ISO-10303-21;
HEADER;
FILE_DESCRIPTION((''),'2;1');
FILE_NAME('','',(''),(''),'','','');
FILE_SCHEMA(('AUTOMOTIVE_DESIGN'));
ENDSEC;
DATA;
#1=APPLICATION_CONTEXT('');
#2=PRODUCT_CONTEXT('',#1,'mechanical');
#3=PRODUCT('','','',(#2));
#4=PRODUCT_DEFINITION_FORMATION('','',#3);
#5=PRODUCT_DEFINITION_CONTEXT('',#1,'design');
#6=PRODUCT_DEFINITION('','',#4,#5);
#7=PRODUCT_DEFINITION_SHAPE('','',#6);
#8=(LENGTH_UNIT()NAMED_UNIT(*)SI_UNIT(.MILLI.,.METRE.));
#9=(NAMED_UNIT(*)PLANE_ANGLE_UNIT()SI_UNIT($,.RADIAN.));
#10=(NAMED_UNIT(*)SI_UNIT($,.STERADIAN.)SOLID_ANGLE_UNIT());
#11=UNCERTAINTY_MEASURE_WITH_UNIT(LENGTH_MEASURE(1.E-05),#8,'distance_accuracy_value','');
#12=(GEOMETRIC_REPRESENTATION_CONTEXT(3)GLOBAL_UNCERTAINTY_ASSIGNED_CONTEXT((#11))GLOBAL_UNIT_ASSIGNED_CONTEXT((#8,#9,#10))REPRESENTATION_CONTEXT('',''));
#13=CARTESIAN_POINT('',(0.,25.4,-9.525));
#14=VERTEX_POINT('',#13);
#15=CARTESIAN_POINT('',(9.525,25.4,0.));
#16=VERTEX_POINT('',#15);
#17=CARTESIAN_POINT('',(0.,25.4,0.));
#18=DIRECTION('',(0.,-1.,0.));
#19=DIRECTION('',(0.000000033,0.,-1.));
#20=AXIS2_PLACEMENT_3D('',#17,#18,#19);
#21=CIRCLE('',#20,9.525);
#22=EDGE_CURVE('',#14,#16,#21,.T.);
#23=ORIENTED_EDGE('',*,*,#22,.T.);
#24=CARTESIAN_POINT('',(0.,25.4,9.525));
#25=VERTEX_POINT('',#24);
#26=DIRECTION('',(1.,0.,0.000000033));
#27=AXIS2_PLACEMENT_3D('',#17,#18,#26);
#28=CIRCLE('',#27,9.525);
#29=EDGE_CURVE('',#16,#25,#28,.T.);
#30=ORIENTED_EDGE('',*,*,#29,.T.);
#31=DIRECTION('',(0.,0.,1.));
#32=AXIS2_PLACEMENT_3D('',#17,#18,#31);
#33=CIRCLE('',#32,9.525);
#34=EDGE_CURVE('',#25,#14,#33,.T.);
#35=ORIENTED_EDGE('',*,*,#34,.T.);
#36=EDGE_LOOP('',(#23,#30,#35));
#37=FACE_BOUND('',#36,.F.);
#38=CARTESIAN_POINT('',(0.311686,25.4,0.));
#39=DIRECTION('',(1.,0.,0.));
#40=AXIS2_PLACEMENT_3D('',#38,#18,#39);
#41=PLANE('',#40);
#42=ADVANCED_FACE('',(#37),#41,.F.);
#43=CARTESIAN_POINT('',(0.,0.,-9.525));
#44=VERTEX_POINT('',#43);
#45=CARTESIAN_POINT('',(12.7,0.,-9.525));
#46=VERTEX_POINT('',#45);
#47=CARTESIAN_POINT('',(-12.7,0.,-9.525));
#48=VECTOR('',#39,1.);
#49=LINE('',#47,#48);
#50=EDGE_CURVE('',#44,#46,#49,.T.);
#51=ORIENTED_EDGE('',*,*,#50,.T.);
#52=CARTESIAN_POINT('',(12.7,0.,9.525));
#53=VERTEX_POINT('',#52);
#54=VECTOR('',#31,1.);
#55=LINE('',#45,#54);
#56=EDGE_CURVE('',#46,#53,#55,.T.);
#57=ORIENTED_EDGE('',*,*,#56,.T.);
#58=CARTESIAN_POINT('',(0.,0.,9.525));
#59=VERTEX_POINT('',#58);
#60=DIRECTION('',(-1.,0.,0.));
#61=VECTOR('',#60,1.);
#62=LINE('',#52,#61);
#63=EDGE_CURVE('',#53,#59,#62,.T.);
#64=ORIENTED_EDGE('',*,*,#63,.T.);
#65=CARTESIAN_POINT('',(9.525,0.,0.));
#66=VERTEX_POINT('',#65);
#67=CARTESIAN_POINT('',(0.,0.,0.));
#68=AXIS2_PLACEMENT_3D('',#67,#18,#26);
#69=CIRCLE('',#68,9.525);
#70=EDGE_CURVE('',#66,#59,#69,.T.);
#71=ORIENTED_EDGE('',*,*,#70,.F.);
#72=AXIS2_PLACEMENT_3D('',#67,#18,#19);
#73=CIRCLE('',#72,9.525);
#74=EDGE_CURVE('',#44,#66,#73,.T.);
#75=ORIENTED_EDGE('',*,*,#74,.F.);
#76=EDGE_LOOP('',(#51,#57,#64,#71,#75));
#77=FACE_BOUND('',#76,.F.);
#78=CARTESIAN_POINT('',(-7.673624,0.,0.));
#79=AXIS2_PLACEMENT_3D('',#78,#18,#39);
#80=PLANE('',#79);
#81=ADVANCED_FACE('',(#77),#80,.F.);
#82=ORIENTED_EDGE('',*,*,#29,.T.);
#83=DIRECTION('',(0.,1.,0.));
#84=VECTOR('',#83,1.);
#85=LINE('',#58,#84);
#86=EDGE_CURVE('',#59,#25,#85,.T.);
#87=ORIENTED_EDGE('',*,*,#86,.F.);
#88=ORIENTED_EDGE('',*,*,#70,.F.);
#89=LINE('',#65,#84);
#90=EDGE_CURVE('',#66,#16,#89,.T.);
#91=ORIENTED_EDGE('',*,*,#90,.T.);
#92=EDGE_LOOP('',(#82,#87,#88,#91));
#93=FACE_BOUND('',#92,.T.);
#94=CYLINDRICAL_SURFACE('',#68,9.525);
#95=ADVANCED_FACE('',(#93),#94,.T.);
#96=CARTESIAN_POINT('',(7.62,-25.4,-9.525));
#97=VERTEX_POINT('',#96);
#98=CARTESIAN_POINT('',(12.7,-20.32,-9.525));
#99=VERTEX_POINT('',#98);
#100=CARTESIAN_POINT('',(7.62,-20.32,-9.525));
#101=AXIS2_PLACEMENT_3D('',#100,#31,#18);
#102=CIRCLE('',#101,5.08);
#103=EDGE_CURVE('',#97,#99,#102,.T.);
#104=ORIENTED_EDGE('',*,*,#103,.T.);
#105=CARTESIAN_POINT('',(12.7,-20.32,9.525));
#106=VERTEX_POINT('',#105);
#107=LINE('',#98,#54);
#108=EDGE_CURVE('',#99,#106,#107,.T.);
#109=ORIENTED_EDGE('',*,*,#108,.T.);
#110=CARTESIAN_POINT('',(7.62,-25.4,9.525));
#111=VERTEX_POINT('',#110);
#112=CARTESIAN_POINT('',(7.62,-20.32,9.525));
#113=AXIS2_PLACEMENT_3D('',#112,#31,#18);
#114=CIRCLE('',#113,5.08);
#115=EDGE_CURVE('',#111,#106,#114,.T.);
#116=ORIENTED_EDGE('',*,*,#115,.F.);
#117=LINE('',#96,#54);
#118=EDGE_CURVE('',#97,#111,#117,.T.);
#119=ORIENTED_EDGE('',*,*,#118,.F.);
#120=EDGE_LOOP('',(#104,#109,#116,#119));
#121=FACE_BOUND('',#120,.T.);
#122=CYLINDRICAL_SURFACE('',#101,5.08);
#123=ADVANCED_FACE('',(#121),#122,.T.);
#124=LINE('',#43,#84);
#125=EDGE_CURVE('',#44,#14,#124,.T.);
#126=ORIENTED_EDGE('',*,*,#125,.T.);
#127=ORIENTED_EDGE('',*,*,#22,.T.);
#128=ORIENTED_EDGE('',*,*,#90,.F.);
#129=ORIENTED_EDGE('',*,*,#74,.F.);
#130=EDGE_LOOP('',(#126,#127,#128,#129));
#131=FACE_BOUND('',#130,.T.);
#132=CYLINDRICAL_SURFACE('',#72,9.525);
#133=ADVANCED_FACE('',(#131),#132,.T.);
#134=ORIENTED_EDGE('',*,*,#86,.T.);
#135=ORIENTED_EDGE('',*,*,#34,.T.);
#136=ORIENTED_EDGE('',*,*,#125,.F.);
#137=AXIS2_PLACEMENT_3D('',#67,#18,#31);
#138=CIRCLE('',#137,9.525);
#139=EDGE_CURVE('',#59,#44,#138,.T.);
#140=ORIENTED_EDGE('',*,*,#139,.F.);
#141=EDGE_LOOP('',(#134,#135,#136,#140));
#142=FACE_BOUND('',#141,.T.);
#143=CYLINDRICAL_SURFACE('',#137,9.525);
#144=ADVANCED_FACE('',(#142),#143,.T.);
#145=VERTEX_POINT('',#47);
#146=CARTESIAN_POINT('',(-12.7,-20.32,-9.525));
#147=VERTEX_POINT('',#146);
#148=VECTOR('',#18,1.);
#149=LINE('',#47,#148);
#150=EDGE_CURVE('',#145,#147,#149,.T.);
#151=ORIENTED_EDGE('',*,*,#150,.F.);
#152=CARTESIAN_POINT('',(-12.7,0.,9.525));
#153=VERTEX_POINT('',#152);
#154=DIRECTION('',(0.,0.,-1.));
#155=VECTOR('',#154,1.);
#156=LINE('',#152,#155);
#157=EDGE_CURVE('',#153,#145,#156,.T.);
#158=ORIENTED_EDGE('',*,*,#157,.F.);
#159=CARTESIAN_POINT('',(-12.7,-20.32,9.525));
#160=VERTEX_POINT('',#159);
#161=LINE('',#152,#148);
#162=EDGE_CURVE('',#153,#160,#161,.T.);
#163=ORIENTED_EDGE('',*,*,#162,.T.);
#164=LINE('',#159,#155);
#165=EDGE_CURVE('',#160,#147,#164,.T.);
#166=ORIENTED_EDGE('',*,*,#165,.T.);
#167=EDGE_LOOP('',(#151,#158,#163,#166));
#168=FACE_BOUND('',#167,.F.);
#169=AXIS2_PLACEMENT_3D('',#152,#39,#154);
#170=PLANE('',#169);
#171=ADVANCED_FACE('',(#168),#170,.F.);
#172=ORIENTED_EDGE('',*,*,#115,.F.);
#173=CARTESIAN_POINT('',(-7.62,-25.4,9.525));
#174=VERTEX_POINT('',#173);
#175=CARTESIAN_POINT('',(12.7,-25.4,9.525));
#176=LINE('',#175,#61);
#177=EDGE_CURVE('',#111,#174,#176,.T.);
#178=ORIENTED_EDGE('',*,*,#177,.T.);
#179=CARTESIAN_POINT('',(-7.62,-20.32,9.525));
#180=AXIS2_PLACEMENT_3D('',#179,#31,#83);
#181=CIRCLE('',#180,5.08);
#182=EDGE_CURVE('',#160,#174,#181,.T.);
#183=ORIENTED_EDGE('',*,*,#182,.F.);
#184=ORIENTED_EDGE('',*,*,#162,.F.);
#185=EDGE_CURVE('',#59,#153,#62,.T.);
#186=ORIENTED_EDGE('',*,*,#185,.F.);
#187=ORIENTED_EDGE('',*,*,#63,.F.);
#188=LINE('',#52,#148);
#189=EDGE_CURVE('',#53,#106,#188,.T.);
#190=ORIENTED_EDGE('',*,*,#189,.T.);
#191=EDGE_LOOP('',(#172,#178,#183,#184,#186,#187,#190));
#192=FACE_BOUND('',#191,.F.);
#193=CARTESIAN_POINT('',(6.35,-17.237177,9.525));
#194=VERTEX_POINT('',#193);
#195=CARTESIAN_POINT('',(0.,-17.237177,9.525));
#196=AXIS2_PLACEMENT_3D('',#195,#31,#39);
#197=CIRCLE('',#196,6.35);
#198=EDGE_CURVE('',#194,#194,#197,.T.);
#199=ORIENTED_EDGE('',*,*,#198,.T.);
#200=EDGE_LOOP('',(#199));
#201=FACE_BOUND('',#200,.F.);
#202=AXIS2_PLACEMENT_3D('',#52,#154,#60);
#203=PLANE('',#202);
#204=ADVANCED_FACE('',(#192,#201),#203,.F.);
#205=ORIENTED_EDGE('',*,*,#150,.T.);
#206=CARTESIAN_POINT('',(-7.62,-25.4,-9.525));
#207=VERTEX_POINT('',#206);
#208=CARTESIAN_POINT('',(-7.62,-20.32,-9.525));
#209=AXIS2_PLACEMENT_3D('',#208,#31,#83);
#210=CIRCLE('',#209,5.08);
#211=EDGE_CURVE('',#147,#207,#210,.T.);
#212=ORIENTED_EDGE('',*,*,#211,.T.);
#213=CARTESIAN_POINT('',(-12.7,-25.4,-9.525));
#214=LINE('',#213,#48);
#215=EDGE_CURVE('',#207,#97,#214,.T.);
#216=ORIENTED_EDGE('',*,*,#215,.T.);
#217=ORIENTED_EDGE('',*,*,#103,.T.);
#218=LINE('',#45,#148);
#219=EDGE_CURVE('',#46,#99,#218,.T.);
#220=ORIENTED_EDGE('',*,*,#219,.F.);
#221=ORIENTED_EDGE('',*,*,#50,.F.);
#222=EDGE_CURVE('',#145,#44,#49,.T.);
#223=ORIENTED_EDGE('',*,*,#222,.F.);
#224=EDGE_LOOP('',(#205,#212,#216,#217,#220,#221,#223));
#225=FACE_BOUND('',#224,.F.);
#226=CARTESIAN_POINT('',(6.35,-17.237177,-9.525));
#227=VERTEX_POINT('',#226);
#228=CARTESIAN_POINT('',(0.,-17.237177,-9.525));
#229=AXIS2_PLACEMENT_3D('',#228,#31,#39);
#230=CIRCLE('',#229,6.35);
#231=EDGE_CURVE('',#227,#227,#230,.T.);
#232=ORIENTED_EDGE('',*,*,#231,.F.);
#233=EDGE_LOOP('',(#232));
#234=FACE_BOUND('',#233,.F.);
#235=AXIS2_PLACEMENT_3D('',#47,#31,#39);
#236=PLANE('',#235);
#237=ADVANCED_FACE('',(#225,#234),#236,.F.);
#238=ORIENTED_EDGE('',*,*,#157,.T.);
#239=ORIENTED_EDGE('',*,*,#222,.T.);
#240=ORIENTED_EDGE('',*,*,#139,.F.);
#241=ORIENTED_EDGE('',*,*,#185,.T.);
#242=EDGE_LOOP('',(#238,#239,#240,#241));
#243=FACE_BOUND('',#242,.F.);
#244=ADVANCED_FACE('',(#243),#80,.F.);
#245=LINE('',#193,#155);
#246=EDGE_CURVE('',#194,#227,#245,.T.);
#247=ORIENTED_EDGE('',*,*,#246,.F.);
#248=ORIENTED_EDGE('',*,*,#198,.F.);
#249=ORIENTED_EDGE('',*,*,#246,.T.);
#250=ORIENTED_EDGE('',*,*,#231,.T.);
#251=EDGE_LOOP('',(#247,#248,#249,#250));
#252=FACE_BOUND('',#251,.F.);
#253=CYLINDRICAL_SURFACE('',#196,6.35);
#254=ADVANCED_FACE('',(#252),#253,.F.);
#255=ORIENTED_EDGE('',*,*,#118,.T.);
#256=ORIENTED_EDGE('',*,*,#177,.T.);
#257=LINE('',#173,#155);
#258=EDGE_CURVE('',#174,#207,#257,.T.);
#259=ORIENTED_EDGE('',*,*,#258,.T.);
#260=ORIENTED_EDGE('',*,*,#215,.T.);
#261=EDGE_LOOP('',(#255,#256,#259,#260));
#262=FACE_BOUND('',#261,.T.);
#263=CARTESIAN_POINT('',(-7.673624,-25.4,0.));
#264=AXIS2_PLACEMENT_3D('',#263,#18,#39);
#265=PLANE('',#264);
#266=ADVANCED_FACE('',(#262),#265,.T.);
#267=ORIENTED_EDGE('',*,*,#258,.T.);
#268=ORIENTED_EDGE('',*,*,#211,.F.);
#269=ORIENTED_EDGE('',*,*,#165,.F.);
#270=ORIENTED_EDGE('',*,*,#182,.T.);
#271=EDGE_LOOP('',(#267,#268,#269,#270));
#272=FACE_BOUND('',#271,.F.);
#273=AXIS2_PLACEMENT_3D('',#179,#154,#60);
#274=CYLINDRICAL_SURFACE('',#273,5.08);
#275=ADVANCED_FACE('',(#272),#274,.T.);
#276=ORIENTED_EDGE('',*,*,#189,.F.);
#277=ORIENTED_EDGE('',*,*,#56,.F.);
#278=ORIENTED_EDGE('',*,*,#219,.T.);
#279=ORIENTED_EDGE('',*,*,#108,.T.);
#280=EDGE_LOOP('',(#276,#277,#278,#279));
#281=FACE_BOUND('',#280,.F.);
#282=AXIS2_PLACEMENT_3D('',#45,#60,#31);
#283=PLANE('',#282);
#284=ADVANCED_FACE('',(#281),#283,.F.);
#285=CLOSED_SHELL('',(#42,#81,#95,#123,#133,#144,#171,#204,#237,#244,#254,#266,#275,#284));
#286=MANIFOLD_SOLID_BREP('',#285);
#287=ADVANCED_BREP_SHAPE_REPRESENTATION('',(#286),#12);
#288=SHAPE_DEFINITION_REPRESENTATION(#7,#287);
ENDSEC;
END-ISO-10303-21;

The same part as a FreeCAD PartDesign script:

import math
import FreeCAD as App
import Part
import Sketcher

V = App.Vector
Q = App.Units.Quantity


def edges_at(feature, points):
    """Names of the edges that pass closest to the given points."""
    edges = feature.Shape.Edges
    near = lambda p: min(range(len(edges)), key=lambda i: edges[i].distToShape(Part.Vertex(*p))[0])
    return sorted({f"Edge{near(p) + 1}" for p in points})

doc = App.newDocument("Part")
body = doc.addObject("PartDesign::Body", "Body")

# Sketch on XZ plane
sketch1 = body.newObject("Sketcher::SketchObject", "Sketch")
sketch1.AttachmentSupport = (doc.getObject("XZ_Plane"), [""])
sketch1.MapMode = "FlatFace"
sketch1.addGeometry([
    Part.ArcOfCircle(Part.Circle(V(0, 0, 0), V(0, 0, 1), 9.525), math.radians(90), math.radians(270)),
    Part.ArcOfCircle(Part.Circle(V(0, 0, 0), V(0, 0, 1), 9.525), math.radians(-89.999998), math.radians(-0.000002)),
    Part.ArcOfCircle(Part.Circle(V(0, 0, 0), V(0, 0, 1), 9.525), math.radians(0.000002), math.radians(89.999998)),
], False)
sketch1.addConstraint([
    Sketcher.Constraint("Tangent", 0, 2, 1, 1),
    Sketcher.Constraint("Tangent", 1, 2, 2, 1),
    Sketcher.Constraint("Tangent", 2, 2, 0, 1),
    Sketcher.Constraint("Coincident", 0, 3, -1, 1),
    Sketcher.Constraint("PointOnObject", 0, 2, -2),
    Sketcher.Constraint("PointOnObject", 1, 2, -1),
    Sketcher.Constraint("PointOnObject", 2, 2, -2),
    Sketcher.Constraint("Radius", 0, Q("0.375 in")),
])
pad1 = body.newObject("PartDesign::Pad", "Pad")
pad1.Profile = sketch1
pad1.Length = Q("1 in")
pad1.Reversed = True

# Sketch on XZ plane
sketch2 = body.newObject("Sketcher::SketchObject", "Sketch001")
sketch2.AttachmentSupport = (doc.getObject("XZ_Plane"), [""])
sketch2.MapMode = "FlatFace"
sketch2.addGeometry([
    Part.LineSegment(V(-12.7, 9.525, 0), V(-12.7, -9.525, 0)),
    Part.LineSegment(V(-12.7, -9.525, 0), V(12.7, -9.525, 0)),
    Part.LineSegment(V(12.7, -9.525, 0), V(12.7, 9.525, 0)),
    Part.LineSegment(V(12.7, 9.525, 0), V(-12.7, 9.525, 0)),
], False)
sketch2.addConstraint([
    Sketcher.Constraint("Coincident", 0, 2, 1, 1),
    Sketcher.Constraint("Coincident", 1, 2, 2, 1),
    Sketcher.Constraint("Coincident", 2, 2, 3, 1),
    Sketcher.Constraint("Coincident", 3, 2, 0, 1),
    Sketcher.Constraint("Vertical", 0),
    Sketcher.Constraint("Horizontal", 1),
    Sketcher.Constraint("Vertical", 2),
    Sketcher.Constraint("Horizontal", 3),
    Sketcher.Constraint("Symmetric", 0, 2, 2, 2, -1, 1),
    Sketcher.Constraint("DistanceX", 1, 1, 1, 2, Q("1 in")),
    Sketcher.Constraint("DistanceY", 0, 2, 0, 1, Q("0.75 in")),
])
pad2 = body.newObject("PartDesign::Pad", "Pad001")
pad2.Profile = sketch2
pad2.Length = Q("1 in")

# Sketch on XY plane
sketch3 = body.newObject("Sketcher::SketchObject", "Sketch002")
sketch3.AttachmentSupport = (doc.getObject("XY_Plane"), [""])
sketch3.MapMode = "FlatFace"
sketch3.AttachmentOffset = App.Placement(V(0, 0, 0.375 * 25.4), App.Rotation())
sketch3.addGeometry(Part.Circle(V(0, -17.237177, 0), V(0, 0, 1), 6.35), False)
sketch3.addConstraint([
    Sketcher.Constraint("PointOnObject", 0, 3, -2),
    Sketcher.Constraint("Diameter", 0, Q("0.5 in")),
    Sketcher.Constraint("DistanceY", 0, 3, -1, 1, 17.237177),
])
pocket1 = body.newObject("PartDesign::Pocket", "Pocket")
pocket1.Profile = sketch3
pocket1.Length = Q("1 in")
doc.recompute()

fillet = body.newObject("PartDesign::Fillet", "Fillet")
fillet.Base = (pocket1, edges_at(pocket1, [(-12.7, -25.4, 0), (12.7, -25.4, 0)]))
fillet.Radius = Q("0.2 in")

doc.recompute()
